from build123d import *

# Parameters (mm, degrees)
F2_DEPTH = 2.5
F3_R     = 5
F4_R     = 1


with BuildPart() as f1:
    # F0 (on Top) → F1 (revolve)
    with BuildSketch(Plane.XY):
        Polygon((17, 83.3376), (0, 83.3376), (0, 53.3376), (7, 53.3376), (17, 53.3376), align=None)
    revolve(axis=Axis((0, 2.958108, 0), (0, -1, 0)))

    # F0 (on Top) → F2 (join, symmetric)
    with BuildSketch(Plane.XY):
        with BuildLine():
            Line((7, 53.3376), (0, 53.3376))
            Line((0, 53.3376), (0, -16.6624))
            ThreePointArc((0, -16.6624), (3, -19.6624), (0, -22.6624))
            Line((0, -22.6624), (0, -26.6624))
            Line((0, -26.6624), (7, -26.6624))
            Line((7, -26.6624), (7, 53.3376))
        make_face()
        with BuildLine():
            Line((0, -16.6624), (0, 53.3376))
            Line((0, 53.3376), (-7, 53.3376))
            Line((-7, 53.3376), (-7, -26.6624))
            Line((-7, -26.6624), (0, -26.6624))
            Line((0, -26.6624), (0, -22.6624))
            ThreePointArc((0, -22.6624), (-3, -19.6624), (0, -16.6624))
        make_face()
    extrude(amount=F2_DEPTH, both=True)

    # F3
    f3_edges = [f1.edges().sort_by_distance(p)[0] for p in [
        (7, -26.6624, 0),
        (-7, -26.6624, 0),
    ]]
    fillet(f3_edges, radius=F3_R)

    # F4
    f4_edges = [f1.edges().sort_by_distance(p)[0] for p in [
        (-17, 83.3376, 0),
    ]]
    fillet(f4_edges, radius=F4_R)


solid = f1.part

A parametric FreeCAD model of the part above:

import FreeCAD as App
import Part
import Sketcher


def edges_at(feature, points):
    """Names of the edges that pass closest to the given points."""
    edges = feature.Shape.Edges
    near = lambda p: min(range(len(edges)), key=lambda i: edges[i].distToShape(Part.Vertex(*p))[0])
    return sorted({f"Edge{near(p) + 1}" for p in points})

doc = App.newDocument("Part")
body = doc.addObject("PartDesign::Body", "Body")

sketch1 = body.newObject("Sketcher::SketchObject", "Sketch")
sketch1.AttachmentSupport = (doc.getObject("XY_Plane"), [""])
sketch1.MapMode = "FlatFace"
sketch1.addGeometry(Part.LineSegment(App.Vector(17, 83.3376, 0), App.Vector(0, 83.3376, 0)), False)
sketch1.addGeometry(Part.LineSegment(App.Vector(0, 83.3376, 0), App.Vector(0, 53.3376, 0)), False)
sketch1.addGeometry(Part.LineSegment(App.Vector(0, 53.3376, 0), App.Vector(17, 53.3376, 0)), False)
sketch1.addGeometry(Part.LineSegment(App.Vector(17, 53.3376, 0), App.Vector(17, 83.3376, 0)), False)
sketch1.addConstraint(Sketcher.Constraint("Coincident", 0, 2, 1, 1))
sketch1.addConstraint(Sketcher.Constraint("Coincident", 1, 2, 2, 1))
sketch1.addConstraint(Sketcher.Constraint("Coincident", 2, 2, 3, 1))
sketch1.addConstraint(Sketcher.Constraint("Coincident", 3, 2, 0, 1))
sketch1.addConstraint(Sketcher.Constraint("Horizontal", 0))
sketch1.addConstraint(Sketcher.Constraint("Vertical", 1))
sketch1.addConstraint(Sketcher.Constraint("Horizontal", 2))
sketch1.addConstraint(Sketcher.Constraint("Vertical", 3))
sketch1.addConstraint(Sketcher.Constraint("PointOnObject", 0, 2, -2))
sketch1.addConstraint(Sketcher.Constraint("DistanceX", 0, 2, 0, 1, 17.0))
sketch1.addConstraint(Sketcher.Constraint("DistanceY", 1, 2, 1, 1, 30.0))
sketch1.addConstraint(Sketcher.Constraint("DistanceY", -1, 1, 0, 2, 83.3376))
revolution = body.newObject("PartDesign::Revolution", "Revolution")
revolution.Profile = sketch1
revolution.ReferenceAxis = (sketch1, ["V_Axis"])
revolution.Angle = 360

sketch2 = body.newObject("Sketcher::SketchObject", "Sketch001")
sketch2.AttachmentSupport = (doc.getObject("XY_Plane"), [""])
sketch2.MapMode = "FlatFace"
sketch2.addGeometry(Part.LineSegment(App.Vector(7, 53.3376, 0), App.Vector(-7, 53.3376, 0)), False)
sketch2.addGeometry(Part.LineSegment(App.Vector(-7, 53.3376, 0), App.Vector(-7, -26.6624, 0)), False)
sketch2.addGeometry(Part.LineSegment(App.Vector(-7, -26.6624, 0), App.Vector(7, -26.6624, 0)), False)
sketch2.addGeometry(Part.LineSegment(App.Vector(7, -26.6624, 0), App.Vector(7, 53.3376, 0)), False)
sketch2.addGeometry(Part.Circle(App.Vector(0, -19.6624, 0), App.Vector(0, 0, 1), 3), False)
sketch2.addConstraint(Sketcher.Constraint("Coincident", 0, 2, 1, 1))
sketch2.addConstraint(Sketcher.Constraint("Coincident", 1, 2, 2, 1))
sketch2.addConstraint(Sketcher.Constraint("Coincident", 2, 2, 3, 1))
sketch2.addConstraint(Sketcher.Constraint("Coincident", 3, 2, 0, 1))
sketch2.addConstraint(Sketcher.Constraint("Horizontal", 0))
sketch2.addConstraint(Sketcher.Constraint("Vertical", 1))
sketch2.addConstraint(Sketcher.Constraint("Horizontal", 2))
sketch2.addConstraint(Sketcher.Constraint("Vertical", 3))
sketch2.addConstraint(Sketcher.Constraint("PointOnObject", 4, 3, -2))
sketch2.addConstraint(Sketcher.Constraint("Diameter", 4, 6.0))
sketch2.addConstraint(Sketcher.Constraint("DistanceX", 0, 2, 0, 1, 14.0))
sketch2.addConstraint(Sketcher.Constraint("DistanceY", 1, 2, 1, 1, 80.0))
sketch2.addConstraint(Sketcher.Constraint("DistanceX", 0, 2, -1, 1, 7.0))
sketch2.addConstraint(Sketcher.Constraint("DistanceY", 4, 3, 0, 2, 73.0))
sketch2.addConstraint(Sketcher.Constraint("DistanceY", 4, 3, -1, 1, 19.6624))
pad1 = body.newObject("PartDesign::Pad", "Pad")
pad1.Profile = sketch2
pad1.Length = 5
pad1.Midplane = True
doc.recompute()

fillet = body.newObject("PartDesign::Fillet", "Fillet")
fillet.Base = (pad1, edges_at(pad1, [(7, -26.662, 0), (-7, -26.662, 0)]))
fillet.Radius = 5
doc.recompute()

fillet2 = body.newObject("PartDesign::Fillet", "Fillet001")
fillet2.Base = (fillet, edges_at(fillet, [(-17, 83.338, 0)]))
fillet2.Radius = 1

doc.recompute()
